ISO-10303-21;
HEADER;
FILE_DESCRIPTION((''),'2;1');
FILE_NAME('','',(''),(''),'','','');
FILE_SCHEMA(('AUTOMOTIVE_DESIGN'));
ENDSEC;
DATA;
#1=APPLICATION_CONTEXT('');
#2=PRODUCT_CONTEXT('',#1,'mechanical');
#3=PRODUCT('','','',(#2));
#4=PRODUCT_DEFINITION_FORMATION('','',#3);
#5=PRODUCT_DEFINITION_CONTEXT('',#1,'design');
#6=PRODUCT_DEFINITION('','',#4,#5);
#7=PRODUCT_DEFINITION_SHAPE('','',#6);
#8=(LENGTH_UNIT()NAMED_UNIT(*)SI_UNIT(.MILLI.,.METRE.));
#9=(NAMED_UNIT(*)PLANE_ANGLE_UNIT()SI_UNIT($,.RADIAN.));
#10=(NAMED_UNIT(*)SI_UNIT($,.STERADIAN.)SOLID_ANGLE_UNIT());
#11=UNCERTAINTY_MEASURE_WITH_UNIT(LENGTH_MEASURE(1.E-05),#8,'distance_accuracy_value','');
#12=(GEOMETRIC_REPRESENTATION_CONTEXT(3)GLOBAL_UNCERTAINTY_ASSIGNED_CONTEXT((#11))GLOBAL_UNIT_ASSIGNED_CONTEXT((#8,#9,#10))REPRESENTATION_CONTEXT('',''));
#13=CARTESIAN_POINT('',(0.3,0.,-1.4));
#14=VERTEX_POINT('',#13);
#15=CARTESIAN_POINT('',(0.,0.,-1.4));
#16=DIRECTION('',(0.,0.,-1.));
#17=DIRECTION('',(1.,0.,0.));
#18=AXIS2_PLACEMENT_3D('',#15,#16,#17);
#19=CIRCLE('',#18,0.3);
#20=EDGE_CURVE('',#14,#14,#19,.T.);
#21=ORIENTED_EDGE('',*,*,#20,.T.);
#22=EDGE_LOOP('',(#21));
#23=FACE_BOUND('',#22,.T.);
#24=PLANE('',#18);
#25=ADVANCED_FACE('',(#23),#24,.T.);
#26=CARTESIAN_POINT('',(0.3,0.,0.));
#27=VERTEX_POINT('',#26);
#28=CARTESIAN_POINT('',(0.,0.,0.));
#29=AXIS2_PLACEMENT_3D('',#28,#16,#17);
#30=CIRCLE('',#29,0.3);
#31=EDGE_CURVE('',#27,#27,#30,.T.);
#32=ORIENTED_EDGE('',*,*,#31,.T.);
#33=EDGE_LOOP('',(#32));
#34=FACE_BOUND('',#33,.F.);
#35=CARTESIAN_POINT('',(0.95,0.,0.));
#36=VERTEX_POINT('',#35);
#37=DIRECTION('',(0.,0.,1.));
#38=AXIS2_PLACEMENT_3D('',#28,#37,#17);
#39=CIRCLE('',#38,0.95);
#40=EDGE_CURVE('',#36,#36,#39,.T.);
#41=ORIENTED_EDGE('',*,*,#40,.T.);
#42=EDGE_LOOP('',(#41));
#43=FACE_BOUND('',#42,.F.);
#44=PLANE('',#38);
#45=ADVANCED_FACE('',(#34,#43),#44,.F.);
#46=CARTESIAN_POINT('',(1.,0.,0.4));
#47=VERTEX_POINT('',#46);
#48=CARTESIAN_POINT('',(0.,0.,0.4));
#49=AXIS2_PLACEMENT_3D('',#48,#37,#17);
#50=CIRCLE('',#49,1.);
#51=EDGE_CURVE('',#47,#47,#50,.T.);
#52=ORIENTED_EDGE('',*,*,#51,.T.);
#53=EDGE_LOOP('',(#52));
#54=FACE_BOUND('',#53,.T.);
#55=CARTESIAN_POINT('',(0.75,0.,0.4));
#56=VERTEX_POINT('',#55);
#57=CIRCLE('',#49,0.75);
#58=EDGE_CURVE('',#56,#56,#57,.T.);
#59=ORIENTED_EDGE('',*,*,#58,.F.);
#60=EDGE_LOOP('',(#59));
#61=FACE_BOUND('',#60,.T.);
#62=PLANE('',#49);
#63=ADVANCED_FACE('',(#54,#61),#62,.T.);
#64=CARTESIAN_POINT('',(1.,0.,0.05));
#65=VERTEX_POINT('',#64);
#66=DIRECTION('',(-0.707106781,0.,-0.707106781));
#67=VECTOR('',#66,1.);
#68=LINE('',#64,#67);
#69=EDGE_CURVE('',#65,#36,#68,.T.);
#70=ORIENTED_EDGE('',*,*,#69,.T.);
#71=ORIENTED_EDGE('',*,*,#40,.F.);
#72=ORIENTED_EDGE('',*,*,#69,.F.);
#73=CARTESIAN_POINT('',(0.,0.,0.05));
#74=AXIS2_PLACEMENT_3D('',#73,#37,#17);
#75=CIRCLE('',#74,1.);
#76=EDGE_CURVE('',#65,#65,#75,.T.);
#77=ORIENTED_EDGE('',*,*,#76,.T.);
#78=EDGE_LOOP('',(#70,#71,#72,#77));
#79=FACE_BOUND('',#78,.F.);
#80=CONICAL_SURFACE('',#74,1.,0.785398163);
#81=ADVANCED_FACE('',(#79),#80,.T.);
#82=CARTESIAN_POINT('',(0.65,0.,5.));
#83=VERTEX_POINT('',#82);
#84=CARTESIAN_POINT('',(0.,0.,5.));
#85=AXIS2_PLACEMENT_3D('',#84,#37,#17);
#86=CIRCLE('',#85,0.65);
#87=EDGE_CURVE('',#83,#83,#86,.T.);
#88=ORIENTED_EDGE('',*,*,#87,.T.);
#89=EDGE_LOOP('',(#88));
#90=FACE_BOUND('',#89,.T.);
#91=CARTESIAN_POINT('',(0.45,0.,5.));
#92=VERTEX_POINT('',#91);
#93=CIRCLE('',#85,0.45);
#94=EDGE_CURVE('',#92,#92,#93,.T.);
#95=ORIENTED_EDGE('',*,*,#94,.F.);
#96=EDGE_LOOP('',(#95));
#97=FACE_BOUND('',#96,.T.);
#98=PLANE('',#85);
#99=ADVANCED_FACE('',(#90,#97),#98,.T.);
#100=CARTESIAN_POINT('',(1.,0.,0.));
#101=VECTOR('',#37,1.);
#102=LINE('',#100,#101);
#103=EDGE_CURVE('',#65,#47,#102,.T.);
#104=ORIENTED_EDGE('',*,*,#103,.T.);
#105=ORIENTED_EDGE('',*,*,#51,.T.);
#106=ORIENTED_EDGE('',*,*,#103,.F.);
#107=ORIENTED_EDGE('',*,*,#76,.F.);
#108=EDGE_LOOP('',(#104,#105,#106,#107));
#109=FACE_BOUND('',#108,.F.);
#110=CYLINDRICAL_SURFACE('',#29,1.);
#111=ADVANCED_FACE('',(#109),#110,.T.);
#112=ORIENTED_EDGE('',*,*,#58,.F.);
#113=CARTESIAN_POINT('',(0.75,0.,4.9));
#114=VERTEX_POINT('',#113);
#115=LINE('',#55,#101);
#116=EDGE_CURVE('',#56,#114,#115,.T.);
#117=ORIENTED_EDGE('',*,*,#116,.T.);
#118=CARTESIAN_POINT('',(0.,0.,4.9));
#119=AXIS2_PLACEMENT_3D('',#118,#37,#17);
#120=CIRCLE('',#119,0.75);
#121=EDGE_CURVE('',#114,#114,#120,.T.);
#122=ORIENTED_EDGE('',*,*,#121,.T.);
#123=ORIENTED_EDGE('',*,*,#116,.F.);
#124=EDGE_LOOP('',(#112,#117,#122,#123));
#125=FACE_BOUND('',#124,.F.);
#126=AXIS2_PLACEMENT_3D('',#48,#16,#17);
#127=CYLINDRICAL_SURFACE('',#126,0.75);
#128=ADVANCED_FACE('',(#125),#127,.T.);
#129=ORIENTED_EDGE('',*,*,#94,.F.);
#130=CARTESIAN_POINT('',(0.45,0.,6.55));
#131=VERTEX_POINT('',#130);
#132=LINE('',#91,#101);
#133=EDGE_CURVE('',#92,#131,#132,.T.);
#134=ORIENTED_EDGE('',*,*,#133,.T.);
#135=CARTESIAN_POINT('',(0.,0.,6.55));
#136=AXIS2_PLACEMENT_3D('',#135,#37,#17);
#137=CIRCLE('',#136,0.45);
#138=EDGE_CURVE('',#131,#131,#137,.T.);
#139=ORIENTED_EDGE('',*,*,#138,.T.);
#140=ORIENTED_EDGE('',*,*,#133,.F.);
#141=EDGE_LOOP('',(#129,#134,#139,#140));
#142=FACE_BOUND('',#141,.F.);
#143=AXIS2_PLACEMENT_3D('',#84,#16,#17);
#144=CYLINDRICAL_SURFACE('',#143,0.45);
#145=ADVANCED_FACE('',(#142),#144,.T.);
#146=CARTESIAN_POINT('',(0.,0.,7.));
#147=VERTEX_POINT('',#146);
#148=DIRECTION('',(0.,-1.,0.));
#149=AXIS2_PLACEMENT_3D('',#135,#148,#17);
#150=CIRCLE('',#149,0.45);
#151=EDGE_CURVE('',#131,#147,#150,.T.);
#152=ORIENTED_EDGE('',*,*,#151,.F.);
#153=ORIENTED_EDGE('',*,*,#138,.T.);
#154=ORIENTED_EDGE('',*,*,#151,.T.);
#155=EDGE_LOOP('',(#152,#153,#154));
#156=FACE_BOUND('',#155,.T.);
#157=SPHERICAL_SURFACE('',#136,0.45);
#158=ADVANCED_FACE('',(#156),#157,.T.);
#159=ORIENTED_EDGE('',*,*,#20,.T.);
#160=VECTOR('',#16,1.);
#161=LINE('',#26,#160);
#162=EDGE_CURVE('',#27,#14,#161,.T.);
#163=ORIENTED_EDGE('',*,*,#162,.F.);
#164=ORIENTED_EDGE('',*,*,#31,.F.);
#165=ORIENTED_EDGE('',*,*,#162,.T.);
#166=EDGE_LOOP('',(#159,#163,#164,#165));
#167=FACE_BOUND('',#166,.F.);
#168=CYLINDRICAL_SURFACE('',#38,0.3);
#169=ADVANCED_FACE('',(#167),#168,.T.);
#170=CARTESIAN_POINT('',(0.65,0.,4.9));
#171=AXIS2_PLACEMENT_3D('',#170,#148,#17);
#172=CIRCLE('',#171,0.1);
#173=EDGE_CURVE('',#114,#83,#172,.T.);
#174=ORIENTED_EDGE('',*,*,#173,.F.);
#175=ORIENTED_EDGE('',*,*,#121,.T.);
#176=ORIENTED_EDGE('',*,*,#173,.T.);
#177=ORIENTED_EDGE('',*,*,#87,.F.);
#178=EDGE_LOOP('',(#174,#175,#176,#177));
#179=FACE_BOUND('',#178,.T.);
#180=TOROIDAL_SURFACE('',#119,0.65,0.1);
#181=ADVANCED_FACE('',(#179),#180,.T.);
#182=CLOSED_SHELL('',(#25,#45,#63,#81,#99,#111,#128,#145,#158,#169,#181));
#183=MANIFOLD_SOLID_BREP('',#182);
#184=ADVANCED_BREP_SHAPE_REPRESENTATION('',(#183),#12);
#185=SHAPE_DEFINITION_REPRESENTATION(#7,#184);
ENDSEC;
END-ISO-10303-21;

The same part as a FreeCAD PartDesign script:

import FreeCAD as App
import Part
import Sketcher
Q = App.Units.Quantity


def edges_at(feature, points):
    """Names of the edges that pass closest to the given points."""
    edges = feature.Shape.Edges
    near = lambda p: min(range(len(edges)), key=lambda i: edges[i].distToShape(Part.Vertex(*p))[0])
    return sorted({f"Edge{near(p) + 1}" for p in points})

doc = App.newDocument("Part")
body = doc.addObject("PartDesign::Body", "Body")

# Sketch on XY plane
sketch1 = body.newObject("Sketcher::SketchObject", "Sketch")
sketch1.AttachmentSupport = (doc.getObject("XY_Plane"), [""])
sketch1.MapMode = "FlatFace"
sketch1.addGeometry(Part.Circle(App.Vector(0, 0, 0), App.Vector(0, 0, 1), 1), False)
sketch1.addConstraint(Sketcher.Constraint("Coincident", 0, 3, -1, 1))
sketch1.addConstraint(Sketcher.Constraint("Diameter", 0, Q("2 mm")))
pad1 = body.newObject("PartDesign::Pad", "Pad")
pad1.Profile = sketch1
pad1.Length = 0.4

# Sketch on XY plane
sketch2 = body.newObject("Sketcher::SketchObject", "Sketch001")
sketch2.AttachmentSupport = (doc.getObject("XY_Plane"), [""])
sketch2.MapMode = "FlatFace"
sketch2.AttachmentOffset = App.Placement(App.Vector(0, 0, 0.4), App.Rotation())
sketch2.addGeometry(Part.Circle(App.Vector(0, 0, 0), App.Vector(0, 0, 1), 0.8), False)
sketch2.addConstraint(Sketcher.Constraint("Coincident", 0, 3, -1, 1))
sketch2.addConstraint(Sketcher.Constraint("Diameter", 0, Q("1.5 mm")))
pad2 = body.newObject("PartDesign::Pad", "Pad001")
pad2.Profile = sketch2
pad2.Length = 4.6

# Sketch on XY plane
sketch3 = body.newObject("Sketcher::SketchObject", "Sketch002")
sketch3.AttachmentSupport = (doc.getObject("XY_Plane"), [""])
sketch3.MapMode = "FlatFace"
sketch3.AttachmentOffset = App.Placement(App.Vector(0, 0, 5), App.Rotation())
sketch3.addGeometry(Part.Circle(App.Vector(0, 0, 0), App.Vector(0, 0, 1), 0.45), False)
sketch3.addConstraint(Sketcher.Constraint("Coincident", 0, 3, -1, 1))
sketch3.addConstraint(Sketcher.Constraint("Diameter", 0, Q("0.9 mm")))
pad3 = body.newObject("PartDesign::Pad", "Pad002")
pad3.Profile = sketch3
pad3.Length = 2

# Sketch on XY plane
sketch4 = body.newObject("Sketcher::SketchObject", "Sketch003")
sketch4.AttachmentSupport = (doc.getObject("XY_Plane"), [""])
sketch4.MapMode = "FlatFace"
sketch4.addGeometry(Part.Circle(App.Vector(0, 0, 0), App.Vector(0, 0, 1), 0.3), False)
sketch4.addConstraint(Sketcher.Constraint("Coincident", 0, 3, -1, 1))
sketch4.addConstraint(Sketcher.Constraint("Diameter", 0, Q("0.6 mm")))
pad4 = body.newObject("PartDesign::Pad", "Pad003")
pad4.Profile = sketch4
pad4.Length = 1.4
pad4.Reversed = True
doc.recompute()

chamfer = body.newObject("PartDesign::Chamfer", "Chamfer")
chamfer.Base = (pad4, edges_at(pad4, [(-1, 0, 0)]))
chamfer.Size = 0.05
doc.recompute()

fillet = body.newObject("PartDesign::Fillet", "Fillet")
fillet.Base = (chamfer, edges_at(chamfer, [(-0.75, 0, 5)]))
fillet.Radius = 0.1
doc.recompute()

fillet2 = body.newObject("PartDesign::Fillet", "Fillet001")
fillet2.Base = (fillet, edges_at(fillet, [(-0.45, 0, 7)]))
fillet2.Radius = 0.45

doc.recompute()
